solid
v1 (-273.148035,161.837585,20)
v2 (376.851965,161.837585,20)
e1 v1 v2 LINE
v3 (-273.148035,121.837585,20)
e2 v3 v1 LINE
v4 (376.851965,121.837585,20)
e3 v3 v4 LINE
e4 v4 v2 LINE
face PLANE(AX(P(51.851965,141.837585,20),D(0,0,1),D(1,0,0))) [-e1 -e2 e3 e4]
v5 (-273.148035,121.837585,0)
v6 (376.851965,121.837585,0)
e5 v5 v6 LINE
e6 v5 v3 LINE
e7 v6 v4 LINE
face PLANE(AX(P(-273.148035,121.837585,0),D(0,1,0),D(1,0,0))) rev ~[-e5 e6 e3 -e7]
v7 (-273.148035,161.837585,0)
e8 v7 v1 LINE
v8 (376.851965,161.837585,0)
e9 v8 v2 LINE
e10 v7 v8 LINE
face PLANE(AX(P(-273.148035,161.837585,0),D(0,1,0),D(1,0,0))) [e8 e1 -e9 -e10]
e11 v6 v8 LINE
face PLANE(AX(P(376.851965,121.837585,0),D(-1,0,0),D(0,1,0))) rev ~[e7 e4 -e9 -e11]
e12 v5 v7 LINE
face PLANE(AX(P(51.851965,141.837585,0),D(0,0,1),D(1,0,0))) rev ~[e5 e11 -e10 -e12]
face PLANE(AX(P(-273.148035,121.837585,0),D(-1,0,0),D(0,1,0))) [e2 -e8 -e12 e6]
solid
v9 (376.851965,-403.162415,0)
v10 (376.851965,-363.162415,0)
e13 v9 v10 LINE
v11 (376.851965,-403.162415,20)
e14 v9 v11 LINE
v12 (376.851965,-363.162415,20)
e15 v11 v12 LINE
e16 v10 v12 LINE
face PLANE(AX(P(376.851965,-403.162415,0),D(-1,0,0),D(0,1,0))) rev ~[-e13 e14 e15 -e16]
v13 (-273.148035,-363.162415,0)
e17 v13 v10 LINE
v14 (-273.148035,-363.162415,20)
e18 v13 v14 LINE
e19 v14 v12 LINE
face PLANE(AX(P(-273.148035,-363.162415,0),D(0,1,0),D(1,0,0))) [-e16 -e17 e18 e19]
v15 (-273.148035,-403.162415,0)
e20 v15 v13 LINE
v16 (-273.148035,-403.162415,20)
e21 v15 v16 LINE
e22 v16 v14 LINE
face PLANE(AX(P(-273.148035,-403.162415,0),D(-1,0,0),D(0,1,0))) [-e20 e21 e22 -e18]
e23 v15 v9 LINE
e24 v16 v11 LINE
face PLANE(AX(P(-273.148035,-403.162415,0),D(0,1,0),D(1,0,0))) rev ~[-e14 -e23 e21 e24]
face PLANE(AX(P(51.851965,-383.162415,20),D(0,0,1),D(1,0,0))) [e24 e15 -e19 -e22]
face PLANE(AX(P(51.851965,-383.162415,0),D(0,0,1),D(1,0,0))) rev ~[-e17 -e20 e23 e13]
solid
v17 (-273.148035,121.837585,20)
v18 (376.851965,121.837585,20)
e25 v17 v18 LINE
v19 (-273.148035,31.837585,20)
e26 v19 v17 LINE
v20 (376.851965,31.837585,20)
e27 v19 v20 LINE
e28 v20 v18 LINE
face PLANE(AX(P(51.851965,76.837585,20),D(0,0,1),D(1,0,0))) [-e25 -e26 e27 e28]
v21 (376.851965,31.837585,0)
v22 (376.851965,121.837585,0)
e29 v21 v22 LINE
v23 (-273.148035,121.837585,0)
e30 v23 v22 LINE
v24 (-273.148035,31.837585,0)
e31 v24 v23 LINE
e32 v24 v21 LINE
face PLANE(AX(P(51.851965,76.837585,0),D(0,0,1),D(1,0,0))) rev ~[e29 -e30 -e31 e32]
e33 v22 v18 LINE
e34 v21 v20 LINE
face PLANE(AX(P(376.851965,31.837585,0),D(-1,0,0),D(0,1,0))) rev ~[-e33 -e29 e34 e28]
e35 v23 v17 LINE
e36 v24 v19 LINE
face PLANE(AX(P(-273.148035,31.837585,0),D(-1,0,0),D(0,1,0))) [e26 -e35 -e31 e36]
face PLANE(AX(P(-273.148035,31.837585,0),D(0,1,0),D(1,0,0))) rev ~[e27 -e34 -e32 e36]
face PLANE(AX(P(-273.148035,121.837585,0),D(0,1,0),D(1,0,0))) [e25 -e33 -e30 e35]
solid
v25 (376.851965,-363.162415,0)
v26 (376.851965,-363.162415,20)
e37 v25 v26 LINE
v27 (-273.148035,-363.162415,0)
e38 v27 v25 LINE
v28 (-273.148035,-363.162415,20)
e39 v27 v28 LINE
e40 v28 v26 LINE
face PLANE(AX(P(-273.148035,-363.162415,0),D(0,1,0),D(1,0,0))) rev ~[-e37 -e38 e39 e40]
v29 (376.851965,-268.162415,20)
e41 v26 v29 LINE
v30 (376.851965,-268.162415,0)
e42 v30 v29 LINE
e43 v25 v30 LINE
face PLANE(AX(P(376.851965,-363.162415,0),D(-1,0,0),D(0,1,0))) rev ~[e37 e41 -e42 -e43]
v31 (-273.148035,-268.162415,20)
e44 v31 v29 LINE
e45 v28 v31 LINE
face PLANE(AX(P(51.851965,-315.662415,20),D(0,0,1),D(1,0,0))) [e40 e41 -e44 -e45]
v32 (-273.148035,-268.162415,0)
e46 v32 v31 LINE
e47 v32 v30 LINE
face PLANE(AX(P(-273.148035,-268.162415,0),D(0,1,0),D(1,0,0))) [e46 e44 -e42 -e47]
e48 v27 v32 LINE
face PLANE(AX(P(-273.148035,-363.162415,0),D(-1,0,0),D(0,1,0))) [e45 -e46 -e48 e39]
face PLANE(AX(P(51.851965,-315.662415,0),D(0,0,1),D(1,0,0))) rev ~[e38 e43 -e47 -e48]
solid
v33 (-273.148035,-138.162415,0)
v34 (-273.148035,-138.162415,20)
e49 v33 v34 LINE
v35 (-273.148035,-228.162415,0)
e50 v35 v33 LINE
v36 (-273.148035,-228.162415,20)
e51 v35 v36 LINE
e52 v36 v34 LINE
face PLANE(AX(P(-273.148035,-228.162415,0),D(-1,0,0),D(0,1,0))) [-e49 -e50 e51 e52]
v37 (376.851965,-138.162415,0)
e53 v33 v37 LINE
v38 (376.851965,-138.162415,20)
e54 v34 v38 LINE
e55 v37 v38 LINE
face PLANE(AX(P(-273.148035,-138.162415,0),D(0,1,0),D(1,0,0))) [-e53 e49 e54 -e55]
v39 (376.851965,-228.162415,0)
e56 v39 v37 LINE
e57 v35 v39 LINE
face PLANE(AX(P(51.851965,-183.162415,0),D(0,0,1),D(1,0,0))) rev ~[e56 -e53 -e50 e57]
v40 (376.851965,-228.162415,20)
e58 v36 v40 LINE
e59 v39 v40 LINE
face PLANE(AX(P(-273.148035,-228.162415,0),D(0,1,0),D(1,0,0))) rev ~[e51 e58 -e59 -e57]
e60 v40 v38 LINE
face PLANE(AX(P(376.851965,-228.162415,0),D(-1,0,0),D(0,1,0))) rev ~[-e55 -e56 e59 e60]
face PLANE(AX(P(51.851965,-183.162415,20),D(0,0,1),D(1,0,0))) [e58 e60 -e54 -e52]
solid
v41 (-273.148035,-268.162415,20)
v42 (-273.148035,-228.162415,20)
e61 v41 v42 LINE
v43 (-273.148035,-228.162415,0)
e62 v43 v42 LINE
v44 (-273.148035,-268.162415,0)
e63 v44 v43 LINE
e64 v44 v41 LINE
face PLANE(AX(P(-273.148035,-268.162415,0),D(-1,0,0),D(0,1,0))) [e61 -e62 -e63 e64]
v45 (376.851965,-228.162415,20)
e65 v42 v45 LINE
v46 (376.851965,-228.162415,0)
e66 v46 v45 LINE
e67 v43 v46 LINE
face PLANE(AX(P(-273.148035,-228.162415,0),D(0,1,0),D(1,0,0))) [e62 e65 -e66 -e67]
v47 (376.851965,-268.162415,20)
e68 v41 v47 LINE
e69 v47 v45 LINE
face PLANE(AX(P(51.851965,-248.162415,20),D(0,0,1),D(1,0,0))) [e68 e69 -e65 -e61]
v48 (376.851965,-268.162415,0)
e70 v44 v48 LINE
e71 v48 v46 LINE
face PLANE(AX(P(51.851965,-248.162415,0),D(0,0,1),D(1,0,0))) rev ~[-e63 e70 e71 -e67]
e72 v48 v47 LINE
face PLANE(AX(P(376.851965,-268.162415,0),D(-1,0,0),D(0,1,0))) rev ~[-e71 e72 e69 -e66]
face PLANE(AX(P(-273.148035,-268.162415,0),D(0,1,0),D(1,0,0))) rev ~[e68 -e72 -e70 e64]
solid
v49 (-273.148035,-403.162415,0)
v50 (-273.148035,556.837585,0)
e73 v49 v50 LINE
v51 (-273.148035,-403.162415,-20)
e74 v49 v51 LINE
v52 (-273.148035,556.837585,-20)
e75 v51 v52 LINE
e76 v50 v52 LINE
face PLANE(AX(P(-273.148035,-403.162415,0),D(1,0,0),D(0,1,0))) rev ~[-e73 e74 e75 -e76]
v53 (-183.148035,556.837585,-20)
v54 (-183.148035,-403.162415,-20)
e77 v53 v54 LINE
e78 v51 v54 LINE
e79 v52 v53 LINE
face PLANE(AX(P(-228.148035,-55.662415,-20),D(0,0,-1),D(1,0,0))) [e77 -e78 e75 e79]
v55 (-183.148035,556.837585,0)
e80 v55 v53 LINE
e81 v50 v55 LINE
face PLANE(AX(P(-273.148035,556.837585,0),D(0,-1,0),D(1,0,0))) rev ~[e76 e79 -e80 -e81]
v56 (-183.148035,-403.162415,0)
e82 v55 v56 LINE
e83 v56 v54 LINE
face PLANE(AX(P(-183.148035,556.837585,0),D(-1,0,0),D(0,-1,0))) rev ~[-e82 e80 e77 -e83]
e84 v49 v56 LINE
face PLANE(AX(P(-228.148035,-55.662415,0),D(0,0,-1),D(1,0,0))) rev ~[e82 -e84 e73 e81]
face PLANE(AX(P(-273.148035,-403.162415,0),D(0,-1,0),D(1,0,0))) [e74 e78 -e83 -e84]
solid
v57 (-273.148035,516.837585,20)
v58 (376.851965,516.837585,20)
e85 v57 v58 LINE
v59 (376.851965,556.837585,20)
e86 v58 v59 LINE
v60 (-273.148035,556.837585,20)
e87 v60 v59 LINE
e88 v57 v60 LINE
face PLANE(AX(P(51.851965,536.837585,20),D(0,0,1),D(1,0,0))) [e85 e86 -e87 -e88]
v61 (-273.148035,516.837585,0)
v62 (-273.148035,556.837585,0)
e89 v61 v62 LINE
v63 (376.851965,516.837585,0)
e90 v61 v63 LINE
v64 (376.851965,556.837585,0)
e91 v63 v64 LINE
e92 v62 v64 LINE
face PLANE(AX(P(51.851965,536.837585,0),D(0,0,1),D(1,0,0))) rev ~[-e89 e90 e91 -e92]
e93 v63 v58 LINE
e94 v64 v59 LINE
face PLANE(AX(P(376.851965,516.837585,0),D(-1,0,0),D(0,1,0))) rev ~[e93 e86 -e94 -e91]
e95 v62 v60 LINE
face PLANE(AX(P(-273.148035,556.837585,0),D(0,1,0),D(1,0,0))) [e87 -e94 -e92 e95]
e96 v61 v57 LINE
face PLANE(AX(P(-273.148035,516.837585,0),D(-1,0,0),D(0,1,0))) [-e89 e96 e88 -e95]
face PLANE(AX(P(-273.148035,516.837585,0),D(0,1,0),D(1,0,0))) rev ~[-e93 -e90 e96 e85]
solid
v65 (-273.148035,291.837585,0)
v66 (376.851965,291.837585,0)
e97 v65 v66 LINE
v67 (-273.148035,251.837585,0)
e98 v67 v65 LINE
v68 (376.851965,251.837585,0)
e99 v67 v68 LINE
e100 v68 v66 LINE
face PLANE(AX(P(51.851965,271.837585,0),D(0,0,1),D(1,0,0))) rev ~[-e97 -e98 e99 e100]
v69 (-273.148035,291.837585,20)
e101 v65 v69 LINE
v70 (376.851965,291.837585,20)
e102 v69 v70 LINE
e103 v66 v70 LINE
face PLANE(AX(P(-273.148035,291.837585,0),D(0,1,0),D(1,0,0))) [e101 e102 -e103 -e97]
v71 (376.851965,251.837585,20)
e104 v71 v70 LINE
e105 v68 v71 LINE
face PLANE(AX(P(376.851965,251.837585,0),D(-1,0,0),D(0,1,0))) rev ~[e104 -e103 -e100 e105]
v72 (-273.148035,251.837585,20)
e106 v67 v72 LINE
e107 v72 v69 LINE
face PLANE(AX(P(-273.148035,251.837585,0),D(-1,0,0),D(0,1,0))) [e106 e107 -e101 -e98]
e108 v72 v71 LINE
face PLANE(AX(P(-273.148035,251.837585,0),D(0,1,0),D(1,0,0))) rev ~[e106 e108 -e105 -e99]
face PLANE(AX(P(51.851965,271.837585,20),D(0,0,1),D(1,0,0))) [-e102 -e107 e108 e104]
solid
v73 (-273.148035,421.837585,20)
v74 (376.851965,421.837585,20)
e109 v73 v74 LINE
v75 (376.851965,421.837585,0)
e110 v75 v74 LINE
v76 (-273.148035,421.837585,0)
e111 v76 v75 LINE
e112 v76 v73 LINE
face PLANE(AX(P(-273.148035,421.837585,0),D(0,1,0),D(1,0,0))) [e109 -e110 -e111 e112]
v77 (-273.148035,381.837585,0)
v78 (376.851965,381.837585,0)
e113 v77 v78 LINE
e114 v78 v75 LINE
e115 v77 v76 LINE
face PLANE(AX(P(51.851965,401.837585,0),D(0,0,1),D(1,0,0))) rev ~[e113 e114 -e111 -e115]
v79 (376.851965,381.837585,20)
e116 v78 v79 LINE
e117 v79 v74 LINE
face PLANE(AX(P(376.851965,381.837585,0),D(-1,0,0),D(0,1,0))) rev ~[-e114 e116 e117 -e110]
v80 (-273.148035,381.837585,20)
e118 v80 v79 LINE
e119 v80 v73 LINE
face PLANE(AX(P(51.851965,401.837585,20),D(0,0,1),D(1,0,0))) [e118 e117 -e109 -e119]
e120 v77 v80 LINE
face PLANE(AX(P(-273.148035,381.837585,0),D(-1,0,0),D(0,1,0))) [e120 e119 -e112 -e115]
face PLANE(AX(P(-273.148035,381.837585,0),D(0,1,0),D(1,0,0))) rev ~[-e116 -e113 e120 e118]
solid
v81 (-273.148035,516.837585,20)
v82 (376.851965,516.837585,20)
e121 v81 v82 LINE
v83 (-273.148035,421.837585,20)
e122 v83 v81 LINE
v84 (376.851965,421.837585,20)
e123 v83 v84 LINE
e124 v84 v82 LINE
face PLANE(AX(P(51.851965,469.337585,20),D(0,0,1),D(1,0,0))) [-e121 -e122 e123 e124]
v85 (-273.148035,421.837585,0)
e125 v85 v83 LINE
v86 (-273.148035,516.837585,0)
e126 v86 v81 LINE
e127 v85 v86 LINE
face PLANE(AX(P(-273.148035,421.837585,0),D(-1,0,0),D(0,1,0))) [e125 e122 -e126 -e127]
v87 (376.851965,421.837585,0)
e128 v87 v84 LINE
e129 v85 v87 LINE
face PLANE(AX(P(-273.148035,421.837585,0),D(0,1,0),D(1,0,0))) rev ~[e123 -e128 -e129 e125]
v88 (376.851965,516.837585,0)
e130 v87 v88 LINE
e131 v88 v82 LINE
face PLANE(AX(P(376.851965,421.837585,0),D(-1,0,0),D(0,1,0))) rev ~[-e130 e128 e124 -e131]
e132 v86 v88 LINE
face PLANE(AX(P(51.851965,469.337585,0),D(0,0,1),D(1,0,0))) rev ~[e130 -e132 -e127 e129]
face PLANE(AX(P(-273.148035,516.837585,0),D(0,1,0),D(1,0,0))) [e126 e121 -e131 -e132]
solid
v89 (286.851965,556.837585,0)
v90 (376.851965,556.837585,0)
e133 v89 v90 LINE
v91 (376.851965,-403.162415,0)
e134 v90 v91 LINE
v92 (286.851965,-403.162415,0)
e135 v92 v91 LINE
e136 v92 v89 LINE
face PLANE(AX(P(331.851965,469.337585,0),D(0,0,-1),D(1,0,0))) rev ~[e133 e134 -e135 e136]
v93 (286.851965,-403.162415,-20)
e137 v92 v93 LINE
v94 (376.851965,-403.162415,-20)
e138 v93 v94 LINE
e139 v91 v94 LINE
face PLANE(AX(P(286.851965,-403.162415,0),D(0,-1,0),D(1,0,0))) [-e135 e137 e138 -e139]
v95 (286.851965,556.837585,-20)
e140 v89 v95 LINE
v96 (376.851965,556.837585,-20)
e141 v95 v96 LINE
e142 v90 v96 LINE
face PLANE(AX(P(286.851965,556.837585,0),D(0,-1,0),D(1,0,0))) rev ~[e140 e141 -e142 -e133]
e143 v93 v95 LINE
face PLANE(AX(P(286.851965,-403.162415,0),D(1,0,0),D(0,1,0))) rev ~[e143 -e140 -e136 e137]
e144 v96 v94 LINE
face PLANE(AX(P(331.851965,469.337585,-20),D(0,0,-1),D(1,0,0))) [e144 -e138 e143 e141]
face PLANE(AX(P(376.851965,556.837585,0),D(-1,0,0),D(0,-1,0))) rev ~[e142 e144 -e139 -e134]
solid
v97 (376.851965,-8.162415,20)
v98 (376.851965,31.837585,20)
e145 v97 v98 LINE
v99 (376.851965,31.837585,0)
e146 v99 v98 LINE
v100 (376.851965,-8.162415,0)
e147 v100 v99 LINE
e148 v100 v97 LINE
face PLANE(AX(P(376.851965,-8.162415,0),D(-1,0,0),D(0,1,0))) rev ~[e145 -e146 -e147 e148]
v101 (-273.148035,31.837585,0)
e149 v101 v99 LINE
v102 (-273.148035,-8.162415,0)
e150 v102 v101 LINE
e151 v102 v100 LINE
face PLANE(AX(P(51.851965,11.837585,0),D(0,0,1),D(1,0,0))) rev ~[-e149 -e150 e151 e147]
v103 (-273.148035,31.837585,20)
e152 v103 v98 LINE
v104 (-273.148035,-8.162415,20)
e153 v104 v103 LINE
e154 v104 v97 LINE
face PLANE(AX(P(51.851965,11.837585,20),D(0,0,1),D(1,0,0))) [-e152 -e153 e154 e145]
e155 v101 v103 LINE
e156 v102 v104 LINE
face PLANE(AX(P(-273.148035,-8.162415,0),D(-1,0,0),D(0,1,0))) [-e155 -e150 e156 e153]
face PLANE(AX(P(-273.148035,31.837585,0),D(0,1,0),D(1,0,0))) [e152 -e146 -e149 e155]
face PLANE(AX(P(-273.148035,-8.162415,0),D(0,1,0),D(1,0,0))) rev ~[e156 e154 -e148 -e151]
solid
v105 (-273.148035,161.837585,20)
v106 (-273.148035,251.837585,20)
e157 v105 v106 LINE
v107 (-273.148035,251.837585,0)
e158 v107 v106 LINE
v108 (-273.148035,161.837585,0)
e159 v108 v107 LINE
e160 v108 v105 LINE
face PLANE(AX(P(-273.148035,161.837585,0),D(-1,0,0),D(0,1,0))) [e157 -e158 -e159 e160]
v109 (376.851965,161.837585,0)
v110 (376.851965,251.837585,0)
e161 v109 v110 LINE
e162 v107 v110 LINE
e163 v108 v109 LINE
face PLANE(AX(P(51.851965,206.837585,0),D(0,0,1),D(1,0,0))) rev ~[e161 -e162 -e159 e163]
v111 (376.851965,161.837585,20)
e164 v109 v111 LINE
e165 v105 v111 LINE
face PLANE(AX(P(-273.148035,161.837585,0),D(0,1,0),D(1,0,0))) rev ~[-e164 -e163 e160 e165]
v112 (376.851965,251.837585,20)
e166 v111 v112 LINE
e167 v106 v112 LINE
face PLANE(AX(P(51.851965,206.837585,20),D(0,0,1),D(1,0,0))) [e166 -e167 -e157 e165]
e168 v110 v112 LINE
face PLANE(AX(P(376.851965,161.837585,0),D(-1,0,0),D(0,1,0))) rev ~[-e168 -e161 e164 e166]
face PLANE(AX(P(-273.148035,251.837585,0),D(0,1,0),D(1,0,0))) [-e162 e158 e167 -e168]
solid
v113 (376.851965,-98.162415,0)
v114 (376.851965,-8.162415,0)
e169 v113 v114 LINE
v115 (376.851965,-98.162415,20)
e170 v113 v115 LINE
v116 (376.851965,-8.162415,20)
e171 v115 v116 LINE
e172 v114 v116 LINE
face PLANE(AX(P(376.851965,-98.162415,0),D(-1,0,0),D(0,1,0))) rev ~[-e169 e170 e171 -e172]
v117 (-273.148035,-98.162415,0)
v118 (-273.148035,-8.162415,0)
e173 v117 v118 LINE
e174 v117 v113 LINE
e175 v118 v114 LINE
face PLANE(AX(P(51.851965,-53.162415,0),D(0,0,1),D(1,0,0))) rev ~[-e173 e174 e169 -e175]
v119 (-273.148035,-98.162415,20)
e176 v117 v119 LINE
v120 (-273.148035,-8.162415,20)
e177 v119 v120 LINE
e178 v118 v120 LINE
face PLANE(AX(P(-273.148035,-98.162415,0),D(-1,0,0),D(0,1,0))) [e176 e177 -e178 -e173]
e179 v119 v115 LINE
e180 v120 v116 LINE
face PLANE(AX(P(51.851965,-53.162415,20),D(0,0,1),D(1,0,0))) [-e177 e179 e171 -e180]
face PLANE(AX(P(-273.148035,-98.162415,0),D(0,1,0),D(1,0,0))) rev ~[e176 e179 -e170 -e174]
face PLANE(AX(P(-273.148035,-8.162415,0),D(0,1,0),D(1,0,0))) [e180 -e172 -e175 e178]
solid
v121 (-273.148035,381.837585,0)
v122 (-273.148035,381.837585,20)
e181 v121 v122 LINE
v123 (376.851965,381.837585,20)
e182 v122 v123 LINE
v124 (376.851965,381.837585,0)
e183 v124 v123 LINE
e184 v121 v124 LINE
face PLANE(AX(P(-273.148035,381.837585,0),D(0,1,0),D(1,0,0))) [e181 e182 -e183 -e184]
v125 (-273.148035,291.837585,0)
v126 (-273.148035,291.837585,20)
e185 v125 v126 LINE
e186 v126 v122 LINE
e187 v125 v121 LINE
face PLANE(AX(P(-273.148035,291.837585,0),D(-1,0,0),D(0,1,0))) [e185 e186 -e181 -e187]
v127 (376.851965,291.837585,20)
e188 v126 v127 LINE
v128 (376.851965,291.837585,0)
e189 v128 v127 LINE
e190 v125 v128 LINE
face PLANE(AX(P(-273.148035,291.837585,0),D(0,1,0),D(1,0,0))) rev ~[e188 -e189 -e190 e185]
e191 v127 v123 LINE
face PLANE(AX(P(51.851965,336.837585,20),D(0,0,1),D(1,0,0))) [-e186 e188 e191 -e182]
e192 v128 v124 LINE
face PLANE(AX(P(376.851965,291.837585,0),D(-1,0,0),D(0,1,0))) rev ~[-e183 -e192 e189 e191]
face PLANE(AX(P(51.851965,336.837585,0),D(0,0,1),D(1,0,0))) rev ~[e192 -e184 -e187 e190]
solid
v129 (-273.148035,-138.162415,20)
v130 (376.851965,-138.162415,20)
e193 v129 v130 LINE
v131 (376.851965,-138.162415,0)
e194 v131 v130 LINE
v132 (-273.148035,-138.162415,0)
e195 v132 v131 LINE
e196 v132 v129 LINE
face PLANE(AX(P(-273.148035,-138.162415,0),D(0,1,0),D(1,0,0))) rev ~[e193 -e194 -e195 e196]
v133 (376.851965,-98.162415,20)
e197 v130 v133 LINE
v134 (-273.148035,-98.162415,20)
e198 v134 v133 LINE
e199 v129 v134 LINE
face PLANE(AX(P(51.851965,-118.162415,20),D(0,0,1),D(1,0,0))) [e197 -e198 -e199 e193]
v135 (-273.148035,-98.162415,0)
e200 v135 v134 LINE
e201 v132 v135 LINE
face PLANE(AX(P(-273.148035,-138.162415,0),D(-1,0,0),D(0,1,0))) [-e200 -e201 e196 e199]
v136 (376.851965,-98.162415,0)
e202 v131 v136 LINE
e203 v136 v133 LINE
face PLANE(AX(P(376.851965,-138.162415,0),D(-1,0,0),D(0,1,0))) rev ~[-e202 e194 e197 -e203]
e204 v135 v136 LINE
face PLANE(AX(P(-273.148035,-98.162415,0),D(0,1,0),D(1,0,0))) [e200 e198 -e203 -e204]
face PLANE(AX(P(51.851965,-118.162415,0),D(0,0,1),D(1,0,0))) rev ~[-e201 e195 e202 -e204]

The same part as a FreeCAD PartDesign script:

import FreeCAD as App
import Part
import Sketcher
from FreeCAD import Vector
Q = App.Units.Quantity

doc = App.newDocument("Part")
params = doc.addObject("Spreadsheet::Sheet", "Params")
for row, (alias, value) in enumerate([
    ("sketch1_width", "650 mm"),
    ("sketch1_height", "40 mm"),
    ("pad1_length", "20 mm"),
    ("sketch2_width", "650 mm"),
    ("sketch2_height", "40 mm"),
    ("pad2_length", "20 mm"),
    ("sketch3_width", "650 mm"),
    ("sketch3_height", "40 mm"),
    ("pad3_length", "20 mm"),
    ("sketch4_width", "650 mm"),
    ("sketch4_height", "40 mm"),
    ("pad4_length", "20 mm"),
    ("sketch5_width", "650 mm"),
    ("sketch5_height", "40 mm"),
    ("pad5_length", "20 mm"),
    ("sketch6_width", "650 mm"),
    ("sketch6_height", "40 mm"),
    ("pad6_length", "20 mm"),
    ("sketch7_width", "650 mm"),
    ("sketch7_height", "40 mm"),
    ("pad7_length", "20 mm"),
    ("sketch8_width", "650 mm"),
    ("sketch8_height", "40 mm"),
    ("pad8_length", "20 mm"),
    ("sketch9_width", "650 mm"),
    ("sketch9_height", "95 mm"),
    ("pad9_length", "20 mm"),
    ("sketch10_width", "650 mm"),
    ("sketch10_height", "90 mm"),
    ("pad10_length", "20 mm"),
    ("sketch11_width", "650 mm"),
    ("sketch11_height", "90 mm"),
    ("pad11_length", "20 mm"),
    ("sketch12_width", "650 mm"),
    ("sketch12_height", "90 mm"),
    ("pad12_length", "20 mm"),
    ("sketch13_width", "650 mm"),
    ("sketch13_height", "90 mm"),
    ("pad13_length", "20 mm"),
    ("sketch14_width", "650 mm"),
    ("sketch14_height", "90 mm"),
    ("pad14_length", "20 mm"),
    ("sketch15_width", "650 mm"),
    ("sketch15_height", "95 mm"),
    ("pad15_length", "20 mm"),
    ("sketch16_width", "90 mm"),
    ("sketch16_height", "960 mm"),
    ("pad16_length", "20 mm"),
    ("sketch17_width", "90 mm"),
    ("sketch17_height", "960 mm"),
    ("pad17_length", "20 mm"),
], start=1):
    params.set(f"A{row}", alias)
    params.set(f"B{row}", "=" + value)
    params.setAlias(f"B{row}", alias)

body = doc.addObject("PartDesign::Body", "Body")

# Sketch on XY plane
sketch1 = doc.addObject("Sketcher::SketchObject", "Sketch")
body.addObject(sketch1)
sketch1.AttachmentSupport = (doc.XY_Plane, [""])
sketch1.MapMode = "FlatFace"
sketch1.addGeometry([
    Part.LineSegment(Vector(-273, 557, 0), Vector(-273, 517, 0)),
    Part.LineSegment(Vector(-273, 517, 0), Vector(377, 517, 0)),
    Part.LineSegment(Vector(377, 517, 0), Vector(377, 557, 0)),
    Part.LineSegment(Vector(377, 557, 0), Vector(-273, 557, 0)),
], False)
sketch1.addConstraint([
    Sketcher.Constraint("Coincident", 0, 2, 1, 1),
    Sketcher.Constraint("Coincident", 1, 2, 2, 1),
    Sketcher.Constraint("Coincident", 2, 2, 3, 1),
    Sketcher.Constraint("Coincident", 3, 2, 0, 1),
    Sketcher.Constraint("Vertical", 0),
    Sketcher.Constraint("Horizontal", 1),
    Sketcher.Constraint("Vertical", 2),
    Sketcher.Constraint("Horizontal", 3),
    Sketcher.Constraint("DistanceX", 1, 1, 1, 2, Q("650 mm")),
    Sketcher.Constraint("DistanceY", 0, 2, 0, 1, Q("40 mm")),
    Sketcher.Constraint("DistanceX", 0, 2, -1, 1, Q("273.148035 mm")),
    Sketcher.Constraint("DistanceY", -1, 1, 0, 2, Q("516.837585 mm")),
])
sketch1.setExpression("Constraints[8]", "Params.sketch1_width")
sketch1.setExpression("Constraints[9]", "Params.sketch1_height")
pad1 = doc.addObject("PartDesign::Pad", "Pad")
body.addObject(pad1)
pad1.Profile = sketch1
pad1.setExpression("Length", "Params.pad1_length")
body2 = doc.addObject("PartDesign::Body", "Body001")

# Sketch on XY plane
sketch2 = doc.addObject("Sketcher::SketchObject", "Sketch001")
body2.addObject(sketch2)
sketch2.AttachmentSupport = (doc.getObject("XY_Plane001"), [""])
sketch2.MapMode = "FlatFace"
sketch2.addGeometry([
    Part.LineSegment(Vector(-273, 422, 0), Vector(-273, 382, 0)),
    Part.LineSegment(Vector(-273, 382, 0), Vector(377, 382, 0)),
    Part.LineSegment(Vector(377, 382, 0), Vector(377, 422, 0)),
    Part.LineSegment(Vector(377, 422, 0), Vector(-273, 422, 0)),
], False)
sketch2.addConstraint([
    Sketcher.Constraint("Coincident", 0, 2, 1, 1),
    Sketcher.Constraint("Coincident", 1, 2, 2, 1),
    Sketcher.Constraint("Coincident", 2, 2, 3, 1),
    Sketcher.Constraint("Coincident", 3, 2, 0, 1),
    Sketcher.Constraint("Vertical", 0),
    Sketcher.Constraint("Horizontal", 1),
    Sketcher.Constraint("Vertical", 2),
    Sketcher.Constraint("Horizontal", 3),
    Sketcher.Constraint("DistanceX", 1, 1, 1, 2, Q("650 mm")),
    Sketcher.Constraint("DistanceY", 0, 2, 0, 1, Q("40 mm")),
    Sketcher.Constraint("DistanceX", 0, 2, -1, 1, Q("273.148035 mm")),
    Sketcher.Constraint("DistanceY", -1, 1, 0, 2, Q("381.837585 mm")),
])
sketch2.setExpression("Constraints[8]", "Params.sketch2_width")
sketch2.setExpression("Constraints[9]", "Params.sketch2_height")
pad2 = doc.addObject("PartDesign::Pad", "Pad001")
body2.addObject(pad2)
pad2.Profile = sketch2
pad2.setExpression("Length", "Params.pad2_length")
body3 = doc.addObject("PartDesign::Body", "Body002")

# Sketch on XY plane
sketch3 = doc.addObject("Sketcher::SketchObject", "Sketch002")
body3.addObject(sketch3)
sketch3.AttachmentSupport = (doc.getObject("XY_Plane002"), [""])
sketch3.MapMode = "FlatFace"
sketch3.addGeometry([
    Part.LineSegment(Vector(-273, 292, 0), Vector(-273, 252, 0)),
    Part.LineSegment(Vector(-273, 252, 0), Vector(377, 252, 0)),
    Part.LineSegment(Vector(377, 252, 0), Vector(377, 292, 0)),
    Part.LineSegment(Vector(377, 292, 0), Vector(-273, 292, 0)),
], False)
sketch3.addConstraint([
    Sketcher.Constraint("Coincident", 0, 2, 1, 1),
    Sketcher.Constraint("Coincident", 1, 2, 2, 1),
    Sketcher.Constraint("Coincident", 2, 2, 3, 1),
    Sketcher.Constraint("Coincident", 3, 2, 0, 1),
    Sketcher.Constraint("Vertical", 0),
    Sketcher.Constraint("Horizontal", 1),
    Sketcher.Constraint("Vertical", 2),
    Sketcher.Constraint("Horizontal", 3),
    Sketcher.Constraint("DistanceX", 1, 1, 1, 2, Q("650 mm")),
    Sketcher.Constraint("DistanceY", 0, 2, 0, 1, Q("40 mm")),
    Sketcher.Constraint("DistanceX", 0, 2, -1, 1, Q("273.148035 mm")),
    Sketcher.Constraint("DistanceY", -1, 1, 0, 2, Q("251.837585 mm")),
])
sketch3.setExpression("Constraints[8]", "Params.sketch3_width")
sketch3.setExpression("Constraints[9]", "Params.sketch3_height")
pad3 = doc.addObject("PartDesign::Pad", "Pad002")
body3.addObject(pad3)
pad3.Profile = sketch3
pad3.setExpression("Length", "Params.pad3_length")
body4 = doc.addObject("PartDesign::Body", "Body003")

# Sketch on XY plane
sketch4 = doc.addObject("Sketcher::SketchObject", "Sketch003")
body4.addObject(sketch4)
sketch4.AttachmentSupport = (doc.getObject("XY_Plane003"), [""])
sketch4.MapMode = "FlatFace"
sketch4.addGeometry([
    Part.LineSegment(Vector(-273, 162, 0), Vector(-273, 122, 0)),
    Part.LineSegment(Vector(-273, 122, 0), Vector(377, 122, 0)),
    Part.LineSegment(Vector(377, 122, 0), Vector(377, 162, 0)),
    Part.LineSegment(Vector(377, 162, 0), Vector(-273, 162, 0)),
], False)
sketch4.addConstraint([
    Sketcher.Constraint("Coincident", 0, 2, 1, 1),
    Sketcher.Constraint("Coincident", 1, 2, 2, 1),
    Sketcher.Constraint("Coincident", 2, 2, 3, 1),
    Sketcher.Constraint("Coincident", 3, 2, 0, 1),
    Sketcher.Constraint("Vertical", 0),
    Sketcher.Constraint("Horizontal", 1),
    Sketcher.Constraint("Vertical", 2),
    Sketcher.Constraint("Horizontal", 3),
    Sketcher.Constraint("DistanceX", 1, 1, 1, 2, Q("650 mm")),
    Sketcher.Constraint("DistanceY", 0, 2, 0, 1, Q("40 mm")),
    Sketcher.Constraint("DistanceX", 0, 2, -1, 1, Q("273.148035 mm")),
    Sketcher.Constraint("DistanceY", -1, 1, 0, 2, Q("121.837585 mm")),
])
sketch4.setExpression("Constraints[8]", "Params.sketch4_width")
sketch4.setExpression("Constraints[9]", "Params.sketch4_height")
pad4 = doc.addObject("PartDesign::Pad", "Pad003")
body4.addObject(pad4)
pad4.Profile = sketch4
pad4.setExpression("Length", "Params.pad4_length")
body5 = doc.addObject("PartDesign::Body", "Body004")

# Sketch on XY plane
sketch5 = doc.addObject("Sketcher::SketchObject", "Sketch004")
body5.addObject(sketch5)
sketch5.AttachmentSupport = (doc.getObject("XY_Plane004"), [""])
sketch5.MapMode = "FlatFace"
sketch5.addGeometry([
    Part.LineSegment(Vector(-273, 32, 0), Vector(-273, -8, 0)),
    Part.LineSegment(Vector(-273, -8, 0), Vector(377, -8, 0)),
    Part.LineSegment(Vector(377, -8, 0), Vector(377, 32, 0)),
    Part.LineSegment(Vector(377, 32, 0), Vector(-273, 32, 0)),
], False)
sketch5.addConstraint([
    Sketcher.Constraint("Coincident", 0, 2, 1, 1),
    Sketcher.Constraint("Coincident", 1, 2, 2, 1),
    Sketcher.Constraint("Coincident", 2, 2, 3, 1),
    Sketcher.Constraint("Coincident", 3, 2, 0, 1),
    Sketcher.Constraint("Vertical", 0),
    Sketcher.Constraint("Horizontal", 1),
    Sketcher.Constraint("Vertical", 2),
    Sketcher.Constraint("Horizontal", 3),
    Sketcher.Constraint("DistanceX", 1, 1, 1, 2, Q("650 mm")),
    Sketcher.Constraint("DistanceY", 0, 2, 0, 1, Q("40 mm")),
    Sketcher.Constraint("DistanceX", 0, 2, -1, 1, Q("273.148035 mm")),
    Sketcher.Constraint("DistanceY", 0, 2, -1, 1, Q("8.162415 mm")),
])
sketch5.setExpression("Constraints[8]", "Params.sketch5_width")
sketch5.setExpression("Constraints[9]", "Params.sketch5_height")
pad5 = doc.addObject("PartDesign::Pad", "Pad004")
body5.addObject(pad5)
pad5.Profile = sketch5
pad5.setExpression("Length", "Params.pad5_length")
body6 = doc.addObject("PartDesign::Body", "Body005")

# Sketch on XY plane
sketch6 = doc.addObject("Sketcher::SketchObject", "Sketch005")
body6.addObject(sketch6)
sketch6.AttachmentSupport = (doc.getObject("XY_Plane005"), [""])
sketch6.MapMode = "FlatFace"
sketch6.addGeometry([
    Part.LineSegment(Vector(-273, -98, 0), Vector(-273, -138, 0)),
    Part.LineSegment(Vector(-273, -138, 0), Vector(377, -138, 0)),
    Part.LineSegment(Vector(377, -138, 0), Vector(377, -98, 0)),
    Part.LineSegment(Vector(377, -98, 0), Vector(-273, -98, 0)),
], False)
sketch6.addConstraint([
    Sketcher.Constraint("Coincident", 0, 2, 1, 1),
    Sketcher.Constraint("Coincident", 1, 2, 2, 1),
    Sketcher.Constraint("Coincident", 2, 2, 3, 1),
    Sketcher.Constraint("Coincident", 3, 2, 0, 1),
    Sketcher.Constraint("Vertical", 0),
    Sketcher.Constraint("Horizontal", 1),
    Sketcher.Constraint("Vertical", 2),
    Sketcher.Constraint("Horizontal", 3),
    Sketcher.Constraint("DistanceX", 1, 1, 1, 2, Q("650 mm")),
    Sketcher.Constraint("DistanceY", 0, 2, 0, 1, Q("40 mm")),
    Sketcher.Constraint("DistanceX", 0, 2, -1, 1, Q("273.148035 mm")),
    Sketcher.Constraint("DistanceY", 0, 2, -1, 1, Q("138.162415 mm")),
])
sketch6.setExpression("Constraints[8]", "Params.sketch6_width")
sketch6.setExpression("Constraints[9]", "Params.sketch6_height")
pad6 = doc.addObject("PartDesign::Pad", "Pad005")
body6.addObject(pad6)
pad6.Profile = sketch6
pad6.setExpression("Length", "Params.pad6_length")
body7 = doc.addObject("PartDesign::Body", "Body006")

# Sketch on XY plane
sketch7 = doc.addObject("Sketcher::SketchObject", "Sketch006")
body7.addObject(sketch7)
sketch7.AttachmentSupport = (doc.getObject("XY_Plane006"), [""])
sketch7.MapMode = "FlatFace"
sketch7.addGeometry([
    Part.LineSegment(Vector(-273, -228, 0), Vector(-273, -268, 0)),
    Part.LineSegment(Vector(-273, -268, 0), Vector(377, -268, 0)),
    Part.LineSegment(Vector(377, -268, 0), Vector(377, -228, 0)),
    Part.LineSegment(Vector(377, -228, 0), Vector(-273, -228, 0)),
], False)
sketch7.addConstraint([
    Sketcher.Constraint("Coincident", 0, 2, 1, 1),
    Sketcher.Constraint("Coincident", 1, 2, 2, 1),
    Sketcher.Constraint("Coincident", 2, 2, 3, 1),
    Sketcher.Constraint("Coincident", 3, 2, 0, 1),
    Sketcher.Constraint("Vertical", 0),
    Sketcher.Constraint("Horizontal", 1),
    Sketcher.Constraint("Vertical", 2),
    Sketcher.Constraint("Horizontal", 3),
    Sketcher.Constraint("DistanceX", 1, 1, 1, 2, Q("650 mm")),
    Sketcher.Constraint("DistanceY", 0, 2, 0, 1, Q("40 mm")),
    Sketcher.Constraint("DistanceX", 0, 2, -1, 1, Q("273.148035 mm")),
    Sketcher.Constraint("DistanceY", 0, 2, -1, 1, Q("268.162415 mm")),
])
sketch7.setExpression("Constraints[8]", "Params.sketch7_width")
sketch7.setExpression("Constraints[9]", "Params.sketch7_height")
pad7 = doc.addObject("PartDesign::Pad", "Pad006")
body7.addObject(pad7)
pad7.Profile = sketch7
pad7.setExpression("Length", "Params.pad7_length")
body8 = doc.addObject("PartDesign::Body", "Body007")

# Sketch on XY plane
sketch8 = doc.addObject("Sketcher::SketchObject", "Sketch007")
body8.addObject(sketch8)
sketch8.AttachmentSupport = (doc.getObject("XY_Plane007"), [""])
sketch8.MapMode = "FlatFace"
sketch8.addGeometry([
    Part.LineSegment(Vector(-273, -363, 0), Vector(-273, -403, 0)),
    Part.LineSegment(Vector(-273, -403, 0), Vector(377, -403, 0)),
    Part.LineSegment(Vector(377, -403, 0), Vector(377, -363, 0)),
    Part.LineSegment(Vector(377, -363, 0), Vector(-273, -363, 0)),
], False)
sketch8.addConstraint([
    Sketcher.Constraint("Coincident", 0, 2, 1, 1),
    Sketcher.Constraint("Coincident", 1, 2, 2, 1),
    Sketcher.Constraint("Coincident", 2, 2, 3, 1),
    Sketcher.Constraint("Coincident", 3, 2, 0, 1),
    Sketcher.Constraint("Vertical", 0),
    Sketcher.Constraint("Horizontal", 1),
    Sketcher.Constraint("Vertical", 2),
    Sketcher.Constraint("Horizontal", 3),
    Sketcher.Constraint("DistanceX", 1, 1, 1, 2, Q("650 mm")),
    Sketcher.Constraint("DistanceY", 0, 2, 0, 1, Q("40 mm")),
    Sketcher.Constraint("DistanceX", 0, 2, -1, 1, Q("273.148035 mm")),
    Sketcher.Constraint("DistanceY", 0, 2, -1, 1, Q("403.162415 mm")),
])
sketch8.setExpression("Constraints[8]", "Params.sketch8_width")
sketch8.setExpression("Constraints[9]", "Params.sketch8_height")
pad8 = doc.addObject("PartDesign::Pad", "Pad007")
body8.addObject(pad8)
pad8.Profile = sketch8
pad8.setExpression("Length", "Params.pad8_length")
body9 = doc.addObject("PartDesign::Body", "Body008")

# Sketch on XY plane
sketch9 = doc.addObject("Sketcher::SketchObject", "Sketch008")
body9.addObject(sketch9)
sketch9.AttachmentSupport = (doc.getObject("XY_Plane008"), [""])
sketch9.MapMode = "FlatFace"
sketch9.addGeometry([
    Part.LineSegment(Vector(-273, 517, 0), Vector(-273, 422, 0)),
    Part.LineSegment(Vector(-273, 422, 0), Vector(377, 422, 0)),
    Part.LineSegment(Vector(377, 422, 0), Vector(377, 517, 0)),
    Part.LineSegment(Vector(377, 517, 0), Vector(-273, 517, 0)),
], False)
sketch9.addConstraint([
    Sketcher.Constraint("Coincident", 0, 2, 1, 1),
    Sketcher.Constraint("Coincident", 1, 2, 2, 1),
    Sketcher.Constraint("Coincident", 2, 2, 3, 1),
    Sketcher.Constraint("Coincident", 3, 2, 0, 1),
    Sketcher.Constraint("Vertical", 0),
    Sketcher.Constraint("Horizontal", 1),
    Sketcher.Constraint("Vertical", 2),
    Sketcher.Constraint("Horizontal", 3),
    Sketcher.Constraint("DistanceX", 1, 1, 1, 2, Q("650 mm")),
    Sketcher.Constraint("DistanceY", 0, 2, 0, 1, Q("95 mm")),
    Sketcher.Constraint("DistanceX", 0, 2, -1, 1, Q("273.148035 mm")),
    Sketcher.Constraint("DistanceY", -1, 1, 0, 2, Q("421.837585 mm")),
])
sketch9.setExpression("Constraints[8]", "Params.sketch9_width")
sketch9.setExpression("Constraints[9]", "Params.sketch9_height")
pad9 = doc.addObject("PartDesign::Pad", "Pad008")
body9.addObject(pad9)
pad9.Profile = sketch9
pad9.setExpression("Length", "Params.pad9_length")
body10 = doc.addObject("PartDesign::Body", "Body009")

# Sketch on XY plane
sketch10 = doc.addObject("Sketcher::SketchObject", "Sketch009")
body10.addObject(sketch10)
sketch10.AttachmentSupport = (doc.getObject("XY_Plane009"), [""])
sketch10.MapMode = "FlatFace"
sketch10.addGeometry([
    Part.LineSegment(Vector(-273, 382, 0), Vector(-273, 292, 0)),
    Part.LineSegment(Vector(-273, 292, 0), Vector(377, 292, 0)),
    Part.LineSegment(Vector(377, 292, 0), Vector(377, 382, 0)),
    Part.LineSegment(Vector(377, 382, 0), Vector(-273, 382, 0)),
], False)
sketch10.addConstraint([
    Sketcher.Constraint("Coincident", 0, 2, 1, 1),
    Sketcher.Constraint("Coincident", 1, 2, 2, 1),
    Sketcher.Constraint("Coincident", 2, 2, 3, 1),
    Sketcher.Constraint("Coincident", 3, 2, 0, 1),
    Sketcher.Constraint("Vertical", 0),
    Sketcher.Constraint("Horizontal", 1),
    Sketcher.Constraint("Vertical", 2),
    Sketcher.Constraint("Horizontal", 3),
    Sketcher.Constraint("DistanceX", 1, 1, 1, 2, Q("650 mm")),
    Sketcher.Constraint("DistanceY", 0, 2, 0, 1, Q("90 mm")),
    Sketcher.Constraint("DistanceX", 0, 2, -1, 1, Q("273.148035 mm")),
    Sketcher.Constraint("DistanceY", -1, 1, 0, 2, Q("291.837585 mm")),
])
sketch10.setExpression("Constraints[8]", "Params.sketch10_width")
sketch10.setExpression("Constraints[9]", "Params.sketch10_height")
pad10 = doc.addObject("PartDesign::Pad", "Pad009")
body10.addObject(pad10)
pad10.Profile = sketch10
pad10.setExpression("Length", "Params.pad10_length")
body11 = doc.addObject("PartDesign::Body", "Body010")

# Sketch on XY plane
sketch11 = doc.addObject("Sketcher::SketchObject", "Sketch010")
body11.addObject(sketch11)
sketch11.AttachmentSupport = (doc.getObject("XY_Plane010"), [""])
sketch11.MapMode = "FlatFace"
sketch11.addGeometry([
    Part.LineSegment(Vector(-273, 252, 0), Vector(-273, 162, 0)),
    Part.LineSegment(Vector(-273, 162, 0), Vector(377, 162, 0)),
    Part.LineSegment(Vector(377, 162, 0), Vector(377, 252, 0)),
    Part.LineSegment(Vector(377, 252, 0), Vector(-273, 252, 0)),
], False)
sketch11.addConstraint([
    Sketcher.Constraint("Coincident", 0, 2, 1, 1),
    Sketcher.Constraint("Coincident", 1, 2, 2, 1),
    Sketcher.Constraint("Coincident", 2, 2, 3, 1),
    Sketcher.Constraint("Coincident", 3, 2, 0, 1),
    Sketcher.Constraint("Vertical", 0),
    Sketcher.Constraint("Horizontal", 1),
    Sketcher.Constraint("Vertical", 2),
    Sketcher.Constraint("Horizontal", 3),
    Sketcher.Constraint("DistanceX", 1, 1, 1, 2, Q("650 mm")),
    Sketcher.Constraint("DistanceY", 0, 2, 0, 1, Q("90 mm")),
    Sketcher.Constraint("DistanceX", 0, 2, -1, 1, Q("273.148035 mm")),
    Sketcher.Constraint("DistanceY", -1, 1, 0, 2, Q("161.837585 mm")),
])
sketch11.setExpression("Constraints[8]", "Params.sketch11_width")
sketch11.setExpression("Constraints[9]", "Params.sketch11_height")
pad11 = doc.addObject("PartDesign::Pad", "Pad010")
body11.addObject(pad11)
pad11.Profile = sketch11
pad11.setExpression("Length", "Params.pad11_length")
body12 = doc.addObject("PartDesign::Body", "Body011")

# Sketch on XY plane
sketch12 = doc.addObject("Sketcher::SketchObject", "Sketch011")
body12.addObject(sketch12)
sketch12.AttachmentSupport = (doc.getObject("XY_Plane011"), [""])
sketch12.MapMode = "FlatFace"
sketch12.addGeometry([
    Part.LineSegment(Vector(-273, 122, 0), Vector(-273, 32, 0)),
    Part.LineSegment(Vector(-273, 32, 0), Vector(377, 32, 0)),
    Part.LineSegment(Vector(377, 32, 0), Vector(377, 122, 0)),
    Part.LineSegment(Vector(377, 122, 0), Vector(-273, 122, 0)),
], False)
sketch12.addConstraint([
    Sketcher.Constraint("Coincident", 0, 2, 1, 1),
    Sketcher.Constraint("Coincident", 1, 2, 2, 1),
    Sketcher.Constraint("Coincident", 2, 2, 3, 1),
    Sketcher.Constraint("Coincident", 3, 2, 0, 1),
    Sketcher.Constraint("Vertical", 0),
    Sketcher.Constraint("Horizontal", 1),
    Sketcher.Constraint("Vertical", 2),
    Sketcher.Constraint("Horizontal", 3),
    Sketcher.Constraint("DistanceX", 1, 1, 1, 2, Q("650 mm")),
    Sketcher.Constraint("DistanceY", 0, 2, 0, 1, Q("90 mm")),
    Sketcher.Constraint("DistanceX", 0, 2, -1, 1, Q("273.148035 mm")),
    Sketcher.Constraint("DistanceY", -1, 1, 0, 2, Q("31.837585 mm")),
])
sketch12.setExpression("Constraints[8]", "Params.sketch12_width")
sketch12.setExpression("Constraints[9]", "Params.sketch12_height")
pad12 = doc.addObject("PartDesign::Pad", "Pad011")
body12.addObject(pad12)
pad12.Profile = sketch12
pad12.setExpression("Length", "Params.pad12_length")
body13 = doc.addObject("PartDesign::Body", "Body012")

# Sketch on XY plane
sketch13 = doc.addObject("Sketcher::SketchObject", "Sketch012")
body13.addObject(sketch13)
sketch13.AttachmentSupport = (doc.getObject("XY_Plane012"), [""])
sketch13.MapMode = "FlatFace"
sketch13.addGeometry([
    Part.LineSegment(Vector(-273, -8, 0), Vector(-273, -98, 0)),
    Part.LineSegment(Vector(-273, -98, 0), Vector(377, -98, 0)),
    Part.LineSegment(Vector(377, -98, 0), Vector(377, -8, 0)),
    Part.LineSegment(Vector(377, -8, 0), Vector(-273, -8, 0)),
], False)
sketch13.addConstraint([
    Sketcher.Constraint("Coincident", 0, 2, 1, 1),
    Sketcher.Constraint("Coincident", 1, 2, 2, 1),
    Sketcher.Constraint("Coincident", 2, 2, 3, 1),
    Sketcher.Constraint("Coincident", 3, 2, 0, 1),
    Sketcher.Constraint("Vertical", 0),
    Sketcher.Constraint("Horizontal", 1),
    Sketcher.Constraint("Vertical", 2),
    Sketcher.Constraint("Horizontal", 3),
    Sketcher.Constraint("DistanceX", 1, 1, 1, 2, Q("650 mm")),
    Sketcher.Constraint("DistanceY", 0, 2, 0, 1, Q("90 mm")),
    Sketcher.Constraint("DistanceX", 0, 2, -1, 1, Q("273.148035 mm")),
    Sketcher.Constraint("DistanceY", 0, 2, -1, 1, Q("98.162415 mm")),
])
sketch13.setExpression("Constraints[8]", "Params.sketch13_width")
sketch13.setExpression("Constraints[9]", "Params.sketch13_height")
pad13 = doc.addObject("PartDesign::Pad", "Pad012")
body13.addObject(pad13)
pad13.Profile = sketch13
pad13.setExpression("Length", "Params.pad13_length")
body14 = doc.addObject("PartDesign::Body", "Body013")

# Sketch on XY plane
sketch14 = doc.addObject("Sketcher::SketchObject", "Sketch013")
body14.addObject(sketch14)
sketch14.AttachmentSupport = (doc.getObject("XY_Plane013"), [""])
sketch14.MapMode = "FlatFace"
sketch14.addGeometry([
    Part.LineSegment(Vector(-273, -138, 0), Vector(-273, -228, 0)),
    Part.LineSegment(Vector(-273, -228, 0), Vector(377, -228, 0)),
    Part.LineSegment(Vector(377, -228, 0), Vector(377, -138, 0)),
    Part.LineSegment(Vector(377, -138, 0), Vector(-273, -138, 0)),
], False)
sketch14.addConstraint([
    Sketcher.Constraint("Coincident", 0, 2, 1, 1),
    Sketcher.Constraint("Coincident", 1, 2, 2, 1),
    Sketcher.Constraint("Coincident", 2, 2, 3, 1),
    Sketcher.Constraint("Coincident", 3, 2, 0, 1),
    Sketcher.Constraint("Vertical", 0),
    Sketcher.Constraint("Horizontal", 1),
    Sketcher.Constraint("Vertical", 2),
    Sketcher.Constraint("Horizontal", 3),
    Sketcher.Constraint("DistanceX", 1, 1, 1, 2, Q("650 mm")),
    Sketcher.Constraint("DistanceY", 0, 2, 0, 1, Q("90 mm")),
    Sketcher.Constraint("DistanceX", 0, 2, -1, 1, Q("273.148035 mm")),
    Sketcher.Constraint("DistanceY", 0, 2, -1, 1, Q("228.162415 mm")),
])
sketch14.setExpression("Constraints[8]", "Params.sketch14_width")
sketch14.setExpression("Constraints[9]", "Params.sketch14_height")
pad14 = doc.addObject("PartDesign::Pad", "Pad013")
body14.addObject(pad14)
pad14.Profile = sketch14
pad14.setExpression("Length", "Params.pad14_length")
body15 = doc.addObject("PartDesign::Body", "Body014")

# Sketch on XY plane
sketch15 = doc.addObject("Sketcher::SketchObject", "Sketch014")
body15.addObject(sketch15)
sketch15.AttachmentSupport = (doc.getObject("XY_Plane014"), [""])
sketch15.MapMode = "FlatFace"
sketch15.addGeometry([
    Part.LineSegment(Vector(-273, -268, 0), Vector(-273, -363, 0)),
    Part.LineSegment(Vector(-273, -363, 0), Vector(377, -363, 0)),
    Part.LineSegment(Vector(377, -363, 0), Vector(377, -268, 0)),
    Part.LineSegment(Vector(377, -268, 0), Vector(-273, -268, 0)),
], False)
sketch15.addConstraint([
    Sketcher.Constraint("Coincident", 0, 2, 1, 1),
    Sketcher.Constraint("Coincident", 1, 2, 2, 1),
    Sketcher.Constraint("Coincident", 2, 2, 3, 1),
    Sketcher.Constraint("Coincident", 3, 2, 0, 1),
    Sketcher.Constraint("Vertical", 0),
    Sketcher.Constraint("Horizontal", 1),
    Sketcher.Constraint("Vertical", 2),
    Sketcher.Constraint("Horizontal", 3),
    Sketcher.Constraint("DistanceX", 1, 1, 1, 2, Q("650 mm")),
    Sketcher.Constraint("DistanceY", 0, 2, 0, 1, Q("95 mm")),
    Sketcher.Constraint("DistanceX", 0, 2, -1, 1, Q("273.148035 mm")),
    Sketcher.Constraint("DistanceY", 0, 2, -1, 1, Q("363.162415 mm")),
])
sketch15.setExpression("Constraints[8]", "Params.sketch15_width")
sketch15.setExpression("Constraints[9]", "Params.sketch15_height")
pad15 = doc.addObject("PartDesign::Pad", "Pad014")
body15.addObject(pad15)
pad15.Profile = sketch15
pad15.setExpression("Length", "Params.pad15_length")
body16 = doc.addObject("PartDesign::Body", "Body015")

# Sketch on XY plane
sketch16 = doc.addObject("Sketcher::SketchObject", "Sketch015")
body16.addObject(sketch16)
sketch16.AttachmentSupport = (doc.getObject("XY_Plane015"), [""])
sketch16.MapMode = "FlatFace"
sketch16.addGeometry([
    Part.LineSegment(Vector(287, 557, 0), Vector(377, 557, 0)),
    Part.LineSegment(Vector(377, 557, 0), Vector(377, -403, 0)),
    Part.LineSegment(Vector(377, -403, 0), Vector(287, -403, 0)),
    Part.LineSegment(Vector(287, -403, 0), Vector(287, 557, 0)),
], False)
sketch16.addConstraint([
    Sketcher.Constraint("Coincident", 0, 2, 1, 1),
    Sketcher.Constraint("Coincident", 1, 2, 2, 1),
    Sketcher.Constraint("Coincident", 2, 2, 3, 1),
    Sketcher.Constraint("Coincident", 3, 2, 0, 1),
    Sketcher.Constraint("Horizontal", 0),
    Sketcher.Constraint("Vertical", 1),
    Sketcher.Constraint("Horizontal", 2),
    Sketcher.Constraint("Vertical", 3),
    Sketcher.Constraint("DistanceX", 0, 1, 0, 2, Q("90 mm")),
    Sketcher.Constraint("DistanceY", 1, 2, 1, 1, Q("960 mm")),
    Sketcher.Constraint("DistanceX", -1, 1, 0, 2, Q("376.851965 mm")),
    Sketcher.Constraint("DistanceY", -1, 1, 0, 2, Q("556.837585 mm")),
])
sketch16.setExpression("Constraints[8]", "Params.sketch16_width")
sketch16.setExpression("Constraints[9]", "Params.sketch16_height")
pad16 = doc.addObject("PartDesign::Pad", "Pad015")
body16.addObject(pad16)
pad16.Profile = sketch16
pad16.setExpression("Length", "Params.pad16_length")
pad16.Reversed = True
body17 = doc.addObject("PartDesign::Body", "Body016")

# Sketch on XY plane
sketch17 = doc.addObject("Sketcher::SketchObject", "Sketch016")
body17.addObject(sketch17)
sketch17.AttachmentSupport = (doc.getObject("XY_Plane016"), [""])
sketch17.MapMode = "FlatFace"
sketch17.addGeometry([
    Part.LineSegment(Vector(-273, -403, 0), Vector(-273, 557, 0)),
    Part.LineSegment(Vector(-273, 557, 0), Vector(-183, 557, 0)),
    Part.LineSegment(Vector(-183, 557, 0), Vector(-183, -403, 0)),
    Part.LineSegment(Vector(-183, -403, 0), Vector(-273, -403, 0)),
], False)
sketch17.addConstraint([
    Sketcher.Constraint("Coincident", 0, 2, 1, 1),
    Sketcher.Constraint("Coincident", 1, 2, 2, 1),
    Sketcher.Constraint("Coincident", 2, 2, 3, 1),
    Sketcher.Constraint("Coincident", 3, 2, 0, 1),
    Sketcher.Constraint("Vertical", 0),
    Sketcher.Constraint("Horizontal", 1),
    Sketcher.Constraint("Vertical", 2),
    Sketcher.Constraint("Horizontal", 3),
    Sketcher.Constraint("DistanceX", 1, 1, 1, 2, Q("90 mm")),
    Sketcher.Constraint("DistanceY", 0, 1, 0, 2, Q("960 mm")),
    Sketcher.Constraint("DistanceX", 0, 2, -1, 1, Q("273.148035 mm")),
    Sketcher.Constraint("DistanceY", -1, 1, 0, 2, Q("556.837585 mm")),
])
sketch17.setExpression("Constraints[8]", "Params.sketch17_width")
sketch17.setExpression("Constraints[9]", "Params.sketch17_height")
pad17 = doc.addObject("PartDesign::Pad", "Pad016")
body17.addObject(pad17)
pad17.Profile = sketch17
pad17.setExpression("Length", "Params.pad17_length")
pad17.Reversed = True

doc.recompute()
